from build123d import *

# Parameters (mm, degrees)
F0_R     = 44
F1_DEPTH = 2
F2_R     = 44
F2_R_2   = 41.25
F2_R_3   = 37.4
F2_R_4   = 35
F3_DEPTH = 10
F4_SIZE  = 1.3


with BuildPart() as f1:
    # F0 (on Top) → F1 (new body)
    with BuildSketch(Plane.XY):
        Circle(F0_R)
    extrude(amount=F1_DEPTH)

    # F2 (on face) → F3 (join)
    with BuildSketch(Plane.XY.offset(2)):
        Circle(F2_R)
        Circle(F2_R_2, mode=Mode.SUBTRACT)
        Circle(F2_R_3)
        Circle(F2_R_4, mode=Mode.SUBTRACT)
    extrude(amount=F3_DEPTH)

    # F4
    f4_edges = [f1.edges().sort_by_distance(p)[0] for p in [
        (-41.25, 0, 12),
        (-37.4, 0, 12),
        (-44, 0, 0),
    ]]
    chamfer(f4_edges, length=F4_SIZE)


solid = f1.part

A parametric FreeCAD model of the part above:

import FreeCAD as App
import Part
import Sketcher
from FreeCAD import Vector


def edges_at(feature, points):
    """Names of the edges that pass closest to the given points."""
    edges = feature.Shape.Edges
    near = lambda p: min(range(len(edges)), key=lambda i: edges[i].distToShape(Part.Vertex(*p))[0])
    return sorted({f"Edge{near(p) + 1}" for p in points})

doc = App.newDocument("Part")
body = doc.addObject("PartDesign::Body", "Body")

# Sketch on XY plane
sketch1 = doc.addObject("Sketcher::SketchObject", "Sketch")
body.addObject(sketch1)
sketch1.AttachmentSupport = (doc.XY_Plane, [""])
sketch1.MapMode = "FlatFace"
sketch1.addGeometry(Part.Circle(Vector(0, 0, 0), Vector(0, 0, 1), 44), False)
sketch1.addConstraint(Sketcher.Constraint("Coincident", 0, 3, -1, 1))
sketch1.addConstraint(Sketcher.Constraint("Diameter", 0, 88.0))
pad1 = doc.addObject("PartDesign::Pad", "Pad")
body.addObject(pad1)
pad1.Profile = sketch1
pad1.Length = 2

# Sketch on XY plane
sketch2 = doc.addObject("Sketcher::SketchObject", "Sketch001")
body.addObject(sketch2)
sketch2.AttachmentSupport = (doc.XY_Plane, [""])
sketch2.MapMode = "FlatFace"
sketch2.AttachmentOffset = App.Placement(Vector(0, 0, 2), App.Rotation())
sketch2.addGeometry(Part.Circle(Vector(0, 0, 0), Vector(0, 0, 1), 44), False)
sketch2.addGeometry(Part.Circle(Vector(0, 0, 0), Vector(0, 0, 1), 41), False)
sketch2.addGeometry(Part.Circle(Vector(0, 0, 0), Vector(0, 0, 1), 37), False)
sketch2.addGeometry(Part.Circle(Vector(0, 0, 0), Vector(0, 0, 1), 35), False)
sketch2.addConstraint(Sketcher.Constraint("Coincident", 0, 3, -1, 1))
sketch2.addConstraint(Sketcher.Constraint("Coincident", 1, 3, -1, 1))
sketch2.addConstraint(Sketcher.Constraint("Coincident", 2, 3, -1, 1))
sketch2.addConstraint(Sketcher.Constraint("Coincident", 3, 3, -1, 1))
sketch2.addConstraint(Sketcher.Constraint("Diameter", 0, 88.0))
sketch2.addConstraint(Sketcher.Constraint("Diameter", 3, 70.0))
sketch2.addConstraint(Sketcher.Constraint("Diameter", 1, 82.5))
sketch2.addConstraint(Sketcher.Constraint("Diameter", 2, 74.8))
pad2 = doc.addObject("PartDesign::Pad", "Pad001")
body.addObject(pad2)
pad2.Profile = sketch2
pad2.Length = 10
doc.recompute()

chamfer = doc.addObject("PartDesign::Chamfer", "Chamfer")
body.addObject(chamfer)
chamfer.Base = (pad2, edges_at(pad2, [(-41.25, 0, 12), (-37.4, 0, 12), (-44, 0, 0)]))
chamfer.Size = 1.3

doc.recompute()
